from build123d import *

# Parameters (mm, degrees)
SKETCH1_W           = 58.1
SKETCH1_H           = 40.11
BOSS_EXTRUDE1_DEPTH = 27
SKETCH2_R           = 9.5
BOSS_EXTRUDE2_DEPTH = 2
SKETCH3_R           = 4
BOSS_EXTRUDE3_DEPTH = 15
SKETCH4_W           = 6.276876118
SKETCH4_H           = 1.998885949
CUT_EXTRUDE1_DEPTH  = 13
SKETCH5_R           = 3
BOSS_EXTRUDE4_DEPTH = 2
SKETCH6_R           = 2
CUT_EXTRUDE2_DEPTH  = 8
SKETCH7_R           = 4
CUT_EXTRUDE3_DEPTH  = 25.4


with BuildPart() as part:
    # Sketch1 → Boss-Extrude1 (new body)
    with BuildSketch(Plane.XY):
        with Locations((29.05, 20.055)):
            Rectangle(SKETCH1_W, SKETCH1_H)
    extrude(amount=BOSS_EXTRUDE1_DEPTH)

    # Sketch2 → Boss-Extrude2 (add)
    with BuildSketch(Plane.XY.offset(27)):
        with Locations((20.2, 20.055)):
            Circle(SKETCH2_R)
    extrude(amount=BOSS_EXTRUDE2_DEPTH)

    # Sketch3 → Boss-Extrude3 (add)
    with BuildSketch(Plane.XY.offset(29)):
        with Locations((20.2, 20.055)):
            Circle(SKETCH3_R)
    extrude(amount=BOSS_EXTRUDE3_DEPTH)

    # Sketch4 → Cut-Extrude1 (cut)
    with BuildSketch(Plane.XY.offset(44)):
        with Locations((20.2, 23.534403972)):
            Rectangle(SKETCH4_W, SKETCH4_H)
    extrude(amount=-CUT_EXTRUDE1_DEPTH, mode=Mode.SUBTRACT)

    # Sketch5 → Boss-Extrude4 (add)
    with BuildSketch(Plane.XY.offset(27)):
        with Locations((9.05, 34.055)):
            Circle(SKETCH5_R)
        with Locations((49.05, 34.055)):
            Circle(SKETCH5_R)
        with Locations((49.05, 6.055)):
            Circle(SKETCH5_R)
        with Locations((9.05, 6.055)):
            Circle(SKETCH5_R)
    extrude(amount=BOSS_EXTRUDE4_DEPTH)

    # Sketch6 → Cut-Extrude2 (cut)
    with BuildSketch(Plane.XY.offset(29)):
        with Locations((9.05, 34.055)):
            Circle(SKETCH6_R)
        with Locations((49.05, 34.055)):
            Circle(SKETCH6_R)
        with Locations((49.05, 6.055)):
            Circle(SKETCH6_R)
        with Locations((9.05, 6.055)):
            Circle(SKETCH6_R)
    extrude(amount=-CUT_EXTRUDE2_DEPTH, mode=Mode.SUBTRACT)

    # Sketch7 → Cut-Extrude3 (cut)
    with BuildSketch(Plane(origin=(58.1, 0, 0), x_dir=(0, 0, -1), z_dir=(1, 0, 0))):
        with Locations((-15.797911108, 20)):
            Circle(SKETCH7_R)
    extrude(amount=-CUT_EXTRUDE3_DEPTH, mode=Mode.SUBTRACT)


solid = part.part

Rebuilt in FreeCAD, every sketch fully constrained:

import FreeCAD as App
import Part
import Sketcher

V = App.Vector

doc = App.newDocument("Part")
params = doc.addObject("Spreadsheet::Sheet", "Params")
for row, (alias, value) in enumerate([
    ("sketch1_width", "58.1 mm"),
    ("sketch1_height", "40.11 mm"),
    ("pad1_length", "27 mm"),
    ("sketch2_diameter", "19 mm"),
    ("pad2_length", "2 mm"),
    ("sketch3_diameter", "8 mm"),
    ("pad3_length", "15 mm"),
    ("pocket1_length", "13 mm"),
    ("sketch5_diameter", "6 mm"),
    ("pad4_length", "2 mm"),
    ("sketch6_diameter", "4 mm"),
    ("pocket2_length", "8 mm"),
    ("sketch7_diameter", "8 mm"),
    ("pocket3_length", "25.4 mm"),
], start=1):
    params.set(f"A{row}", alias)
    params.set(f"B{row}", "=" + value)
    params.setAlias(f"B{row}", alias)

body = doc.addObject("PartDesign::Body", "Body")

# Sketch on XY plane
sketch1 = doc.addObject("Sketcher::SketchObject", "Sketch")
body.addObject(sketch1)
sketch1.AttachmentSupport = (doc.XY_Plane, [""])
sketch1.MapMode = "FlatFace"
sketch1.addGeometry(Part.LineSegment(V(0, 40, 0), V(0, 0, 0)), False)
sketch1.addGeometry(Part.LineSegment(V(0, 0, 0), V(58, 0, 0)), False)
sketch1.addGeometry(Part.LineSegment(V(58, 0, 0), V(58, 40, 0)), False)
sketch1.addGeometry(Part.LineSegment(V(58, 40, 0), V(0, 40, 0)), False)
sketch1.addConstraint(Sketcher.Constraint("Coincident", 0, 2, 1, 1))
sketch1.addConstraint(Sketcher.Constraint("Coincident", 1, 2, 2, 1))
sketch1.addConstraint(Sketcher.Constraint("Coincident", 2, 2, 3, 1))
sketch1.addConstraint(Sketcher.Constraint("Coincident", 3, 2, 0, 1))
sketch1.addConstraint(Sketcher.Constraint("Vertical", 0))
sketch1.addConstraint(Sketcher.Constraint("Horizontal", 1))
sketch1.addConstraint(Sketcher.Constraint("Vertical", 2))
sketch1.addConstraint(Sketcher.Constraint("Horizontal", 3))
sketch1.addConstraint(Sketcher.Constraint("Coincident", 0, 2, -1, 1))
sketch1.addConstraint(Sketcher.Constraint("DistanceX", 1, 1, 1, 2, 58.1))
sketch1.addConstraint(Sketcher.Constraint("DistanceY", 0, 2, 0, 1, 40.11))
sketch1.setExpression("Constraints[9]", "Params.sketch1_width")
sketch1.setExpression("Constraints[10]", "Params.sketch1_height")
pad1 = doc.addObject("PartDesign::Pad", "Pad")
body.addObject(pad1)
pad1.Profile = sketch1
pad1.setExpression("Length", "Params.pad1_length")

# Sketch on XY plane
sketch2 = doc.addObject("Sketcher::SketchObject", "Sketch001")
body.addObject(sketch2)
sketch2.AttachmentSupport = (doc.XY_Plane, [""])
sketch2.MapMode = "FlatFace"
sketch2.AttachmentOffset = App.Placement(V(0, 0, 27), App.Rotation())
sketch2.addGeometry(Part.Circle(V(20, 20, 0), V(0, 0, 1), 10), False)
sketch2.addConstraint(Sketcher.Constraint("Diameter", 0, 19.0))
sketch2.addConstraint(Sketcher.Constraint("DistanceX", -1, 1, 0, 3, 20.2))
sketch2.addConstraint(Sketcher.Constraint("DistanceY", -1, 1, 0, 3, 20.055))
sketch2.setExpression("Constraints[0]", "Params.sketch2_diameter")
pad2 = doc.addObject("PartDesign::Pad", "Pad001")
body.addObject(pad2)
pad2.Profile = sketch2
pad2.setExpression("Length", "Params.pad2_length")

# Sketch on XY plane
sketch3 = doc.addObject("Sketcher::SketchObject", "Sketch002")
body.addObject(sketch3)
sketch3.AttachmentSupport = (doc.XY_Plane, [""])
sketch3.MapMode = "FlatFace"
sketch3.AttachmentOffset = App.Placement(V(0, 0, 29), App.Rotation())
sketch3.addGeometry(Part.Circle(V(20.2, 20.1, 0), V(0, 0, 1), 4), False)
sketch3.addConstraint(Sketcher.Constraint("Diameter", 0, 8.0))
sketch3.addConstraint(Sketcher.Constraint("DistanceX", -1, 1, 0, 3, 20.2))
sketch3.addConstraint(Sketcher.Constraint("DistanceY", -1, 1, 0, 3, 20.055))
sketch3.setExpression("Constraints[0]", "Params.sketch3_diameter")
pad3 = doc.addObject("PartDesign::Pad", "Pad002")
body.addObject(pad3)
pad3.Profile = sketch3
pad3.setExpression("Length", "Params.pad3_length")

# Sketch on XY plane
sketch4 = doc.addObject("Sketcher::SketchObject", "Sketch003")
body.addObject(sketch4)
sketch4.AttachmentSupport = (doc.XY_Plane, [""])
sketch4.MapMode = "FlatFace"
sketch4.AttachmentOffset = App.Placement(V(0, 0, 44), App.Rotation())
sketch4.addGeometry(Part.LineSegment(V(17.1, 24.5, 0), V(17.1, 22.5, 0)), False)
sketch4.addGeometry(Part.LineSegment(V(17.1, 22.5, 0), V(23.3, 22.5, 0)), False)
sketch4.addGeometry(Part.LineSegment(V(23.3, 22.5, 0), V(23.3, 24.5, 0)), False)
sketch4.addGeometry(Part.LineSegment(V(23.3, 24.5, 0), V(17.1, 24.5, 0)), False)
sketch4.addConstraint(Sketcher.Constraint("Coincident", 0, 2, 1, 1))
sketch4.addConstraint(Sketcher.Constraint("Coincident", 1, 2, 2, 1))
sketch4.addConstraint(Sketcher.Constraint("Coincident", 2, 2, 3, 1))
sketch4.addConstraint(Sketcher.Constraint("Coincident", 3, 2, 0, 1))
sketch4.addConstraint(Sketcher.Constraint("Vertical", 0))
sketch4.addConstraint(Sketcher.Constraint("Horizontal", 1))
sketch4.addConstraint(Sketcher.Constraint("Vertical", 2))
sketch4.addConstraint(Sketcher.Constraint("Horizontal", 3))
sketch4.addConstraint(Sketcher.Constraint("DistanceX", 1, 1, 1, 2, 6.276876))
sketch4.addConstraint(Sketcher.Constraint("DistanceY", 0, 2, 0, 1, 1.998886))
sketch4.addConstraint(Sketcher.Constraint("DistanceX", -1, 1, 0, 2, 17.061562))
sketch4.addConstraint(Sketcher.Constraint("DistanceY", -1, 1, 0, 2, 22.534961))
pocket1 = doc.addObject("PartDesign::Pocket", "Pocket")
body.addObject(pocket1)
pocket1.Profile = sketch4
pocket1.setExpression("Length", "Params.pocket1_length")

# Sketch on XY plane
sketch5 = doc.addObject("Sketcher::SketchObject", "Sketch004")
body.addObject(sketch5)
sketch5.AttachmentSupport = (doc.XY_Plane, [""])
sketch5.MapMode = "FlatFace"
sketch5.AttachmentOffset = App.Placement(V(0, 0, 27), App.Rotation())
sketch5.addGeometry(Part.Circle(V(9.1, 34.1, 0), V(0, 0, 1), 3), False)
sketch5.addGeometry(Part.Circle(V(49, 34.1, 0), V(0, 0, 1), 3), False)
sketch5.addGeometry(Part.Circle(V(49, 6.1, 0), V(0, 0, 1), 3), False)
sketch5.addGeometry(Part.Circle(V(9.1, 6.1, 0), V(0, 0, 1), 3), False)
sketch5.addConstraint(Sketcher.Constraint("Equal", 0, 1))
sketch5.addConstraint(Sketcher.Constraint("Equal", 1, 2))
sketch5.addConstraint(Sketcher.Constraint("Equal", 2, 3))
sketch5.addConstraint(Sketcher.Constraint("Horizontal", 0, 3, 1, 3))
sketch5.addConstraint(Sketcher.Constraint("Horizontal", 2, 3, 3, 3))
sketch5.addConstraint(Sketcher.Constraint("Vertical", 1, 3, 2, 3))
sketch5.addConstraint(Sketcher.Constraint("Vertical", 0, 3, 3, 3))
sketch5.addConstraint(Sketcher.Constraint("Diameter", 0, 6.0))
sketch5.addConstraint(Sketcher.Constraint("DistanceX", 0, 3, 1, 3, 40.0))
sketch5.addConstraint(Sketcher.Constraint("DistanceY", 2, 3, 1, 3, 28.0))
sketch5.addConstraint(Sketcher.Constraint("DistanceX", -1, 1, 0, 3, 9.05))
sketch5.addConstraint(Sketcher.Constraint("DistanceY", -1, 1, 0, 3, 34.055))
sketch5.setExpression("Constraints[7]", "Params.sketch5_diameter")
pad4 = doc.addObject("PartDesign::Pad", "Pad003")
body.addObject(pad4)
pad4.Profile = sketch5
pad4.setExpression("Length", "Params.pad4_length")

# Sketch on XY plane
sketch6 = doc.addObject("Sketcher::SketchObject", "Sketch005")
body.addObject(sketch6)
sketch6.AttachmentSupport = (doc.XY_Plane, [""])
sketch6.MapMode = "FlatFace"
sketch6.AttachmentOffset = App.Placement(V(0, 0, 29), App.Rotation())
sketch6.addGeometry(Part.Circle(V(9.1, 34.1, 0), V(0, 0, 1), 2), False)
sketch6.addGeometry(Part.Circle(V(49, 34.1, 0), V(0, 0, 1), 2), False)
sketch6.addGeometry(Part.Circle(V(49, 6.1, 0), V(0, 0, 1), 2), False)
sketch6.addGeometry(Part.Circle(V(9.1, 6.1, 0), V(0, 0, 1), 2), False)
sketch6.addConstraint(Sketcher.Constraint("Equal", 0, 1))
sketch6.addConstraint(Sketcher.Constraint("Equal", 1, 2))
sketch6.addConstraint(Sketcher.Constraint("Equal", 2, 3))
sketch6.addConstraint(Sketcher.Constraint("Horizontal", 0, 3, 1, 3))
sketch6.addConstraint(Sketcher.Constraint("Horizontal", 2, 3, 3, 3))
sketch6.addConstraint(Sketcher.Constraint("Vertical", 1, 3, 2, 3))
sketch6.addConstraint(Sketcher.Constraint("Vertical", 0, 3, 3, 3))
sketch6.addConstraint(Sketcher.Constraint("Diameter", 0, 4.0))
sketch6.addConstraint(Sketcher.Constraint("DistanceX", 0, 3, 1, 3, 40.0))
sketch6.addConstraint(Sketcher.Constraint("DistanceY", 2, 3, 1, 3, 28.0))
sketch6.addConstraint(Sketcher.Constraint("DistanceX", -1, 1, 0, 3, 9.05))
sketch6.addConstraint(Sketcher.Constraint("DistanceY", -1, 1, 0, 3, 34.055))
sketch6.setExpression("Constraints[7]", "Params.sketch6_diameter")
pocket2 = doc.addObject("PartDesign::Pocket", "Pocket001")
body.addObject(pocket2)
pocket2.Profile = sketch6
pocket2.setExpression("Length", "Params.pocket2_length")

# Sketch on YZ plane
sketch7 = doc.addObject("Sketcher::SketchObject", "Sketch006")
body.addObject(sketch7)
sketch7.AttachmentSupport = (doc.YZ_Plane, [""])
sketch7.MapMode = "FlatFace"
sketch7.AttachmentOffset = App.Placement(V(0, 0, 58.1), App.Rotation())
sketch7.addGeometry(Part.Circle(V(20, 15.8, 0), V(0, 0, 1), 4), False)
sketch7.addConstraint(Sketcher.Constraint("Diameter", 0, 8.0))
sketch7.addConstraint(Sketcher.Constraint("DistanceX", -1, 1, 0, 3, 20.0))
sketch7.addConstraint(Sketcher.Constraint("DistanceY", -1, 1, 0, 3, 15.797911))
sketch7.setExpression("Constraints[0]", "Params.sketch7_diameter")
pocket3 = doc.addObject("PartDesign::Pocket", "Pocket002")
body.addObject(pocket3)
pocket3.Profile = sketch7
pocket3.setExpression("Length", "Params.pocket3_length")

doc.recompute()
